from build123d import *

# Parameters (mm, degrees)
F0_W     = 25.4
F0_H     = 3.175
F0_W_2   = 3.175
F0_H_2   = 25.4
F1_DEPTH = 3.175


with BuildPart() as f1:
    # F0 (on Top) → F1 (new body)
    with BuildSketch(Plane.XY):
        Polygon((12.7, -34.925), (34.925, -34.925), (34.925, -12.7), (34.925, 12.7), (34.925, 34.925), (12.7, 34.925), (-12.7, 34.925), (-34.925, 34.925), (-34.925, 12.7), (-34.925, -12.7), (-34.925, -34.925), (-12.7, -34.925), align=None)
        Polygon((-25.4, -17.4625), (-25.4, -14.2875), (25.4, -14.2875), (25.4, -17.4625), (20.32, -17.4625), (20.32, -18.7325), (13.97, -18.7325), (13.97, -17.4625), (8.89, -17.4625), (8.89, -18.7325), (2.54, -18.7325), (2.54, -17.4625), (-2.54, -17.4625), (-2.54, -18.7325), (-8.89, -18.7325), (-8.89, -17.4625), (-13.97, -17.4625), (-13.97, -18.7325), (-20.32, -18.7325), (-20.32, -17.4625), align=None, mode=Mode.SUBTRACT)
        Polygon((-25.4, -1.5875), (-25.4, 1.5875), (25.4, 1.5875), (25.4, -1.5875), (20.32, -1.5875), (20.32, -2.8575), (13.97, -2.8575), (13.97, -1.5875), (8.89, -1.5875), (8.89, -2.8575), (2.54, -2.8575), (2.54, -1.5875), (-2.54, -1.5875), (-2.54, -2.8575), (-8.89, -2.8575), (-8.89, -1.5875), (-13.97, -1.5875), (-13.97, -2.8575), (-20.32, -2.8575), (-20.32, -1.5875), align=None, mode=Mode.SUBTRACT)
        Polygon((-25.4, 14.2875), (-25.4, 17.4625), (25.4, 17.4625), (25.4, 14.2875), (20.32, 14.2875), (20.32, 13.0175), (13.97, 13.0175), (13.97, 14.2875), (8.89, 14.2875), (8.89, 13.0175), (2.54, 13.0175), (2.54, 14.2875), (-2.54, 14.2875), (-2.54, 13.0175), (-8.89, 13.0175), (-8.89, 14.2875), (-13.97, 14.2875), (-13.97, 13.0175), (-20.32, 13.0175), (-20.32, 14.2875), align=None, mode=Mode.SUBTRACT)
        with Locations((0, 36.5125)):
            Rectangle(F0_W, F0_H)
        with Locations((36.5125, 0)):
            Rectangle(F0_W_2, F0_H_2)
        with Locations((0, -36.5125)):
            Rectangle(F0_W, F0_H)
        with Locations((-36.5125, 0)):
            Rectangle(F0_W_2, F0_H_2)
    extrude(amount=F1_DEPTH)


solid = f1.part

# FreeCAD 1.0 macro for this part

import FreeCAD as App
import Part
import Sketcher
Q = App.Units.Quantity

doc = App.newDocument("Part")
params = doc.addObject("Spreadsheet::Sheet", "Params")
for row, (alias, value) in enumerate([
    ("sketch1_width", "1 in"),
    ("sketch1_width2", "2 in"),
    ("sketch1_width3", "0.2 in"),
    ("sketch1_height", "0.05 in"),
    ("sketch1_width4", "0.125 in"),
    ("pad1_length", "0.125 in"),
], start=1):
    params.set(f"A{row}", alias)
    params.set(f"B{row}", "=" + value)
    params.setAlias(f"B{row}", alias)

body = doc.addObject("PartDesign::Body", "Body")

sketch1 = body.newObject("Sketcher::SketchObject", "Sketch")
sketch1.AttachmentSupport = (doc.getObject("XY_Plane"), [""])
sketch1.MapMode = "FlatFace"
sketch1.addGeometry(Part.LineSegment(App.Vector(34.9, -34.9, 0), App.Vector(34.9, -12.7, 0)), False)
sketch1.addGeometry(Part.LineSegment(App.Vector(34.9, -12.7, 0), App.Vector(38.1, -12.7, 0)), False)
sketch1.addGeometry(Part.LineSegment(App.Vector(38.1, -12.7, 0), App.Vector(38.1, 12.7, 0)), False)
sketch1.addGeometry(Part.LineSegment(App.Vector(38.1, 12.7, 0), App.Vector(34.9, 12.7, 0)), False)
sketch1.addGeometry(Part.LineSegment(App.Vector(34.9, 12.7, 0), App.Vector(34.9, 34.9, 0)), False)
sketch1.addGeometry(Part.LineSegment(App.Vector(34.9, 34.9, 0), App.Vector(12.7, 34.9, 0)), False)
sketch1.addGeometry(Part.LineSegment(App.Vector(12.7, 34.9, 0), App.Vector(12.7, 38.1, 0)), False)
sketch1.addGeometry(Part.LineSegment(App.Vector(12.7, 38.1, 0), App.Vector(-12.7, 38.1, 0)), False)
sketch1.addGeometry(Part.LineSegment(App.Vector(-12.7, 38.1, 0), App.Vector(-12.7, 34.9, 0)), False)
sketch1.addGeometry(Part.LineSegment(App.Vector(-12.7, 34.9, 0), App.Vector(-34.9, 34.9, 0)), False)
sketch1.addGeometry(Part.LineSegment(App.Vector(-34.9, 34.9, 0), App.Vector(-34.9, 12.7, 0)), False)
sketch1.addGeometry(Part.LineSegment(App.Vector(-34.9, 12.7, 0), App.Vector(-38.1, 12.7, 0)), False)
sketch1.addGeometry(Part.LineSegment(App.Vector(-38.1, 12.7, 0), App.Vector(-38.1, -12.7, 0)), False)
sketch1.addGeometry(Part.LineSegment(App.Vector(-38.1, -12.7, 0), App.Vector(-34.9, -12.7, 0)), False)
sketch1.addGeometry(Part.LineSegment(App.Vector(-34.9, -12.7, 0), App.Vector(-34.9, -34.9, 0)), False)
sketch1.addGeometry(Part.LineSegment(App.Vector(-34.9, -34.9, 0), App.Vector(-12.7, -34.9, 0)), False)
sketch1.addGeometry(Part.LineSegment(App.Vector(-12.7, -34.9, 0), App.Vector(-12.7, -38.1, 0)), False)
sketch1.addGeometry(Part.LineSegment(App.Vector(-12.7, -38.1, 0), App.Vector(12.7, -38.1, 0)), False)
sketch1.addGeometry(Part.LineSegment(App.Vector(12.7, -38.1, 0), App.Vector(12.7, -34.9, 0)), False)
sketch1.addGeometry(Part.LineSegment(App.Vector(12.7, -34.9, 0), App.Vector(34.9, -34.9, 0)), False)
sketch1.addGeometry(Part.LineSegment(App.Vector(-20.3, -17.5, 0), App.Vector(-25.4, -17.5, 0)), False)
sketch1.addGeometry(Part.LineSegment(App.Vector(-25.4, -17.5, 0), App.Vector(-25.4, -14.3, 0)), False)
sketch1.addGeometry(Part.LineSegment(App.Vector(-25.4, -14.3, 0), App.Vector(25.4, -14.3, 0)), False)
sketch1.addGeometry(Part.LineSegment(App.Vector(25.4, -14.3, 0), App.Vector(25.4, -17.5, 0)), False)
sketch1.addGeometry(Part.LineSegment(App.Vector(25.4, -17.5, 0), App.Vector(20.3, -17.5, 0)), False)
sketch1.addGeometry(Part.LineSegment(App.Vector(20.3, -17.5, 0), App.Vector(20.3, -18.7, 0)), False)
sketch1.addGeometry(Part.LineSegment(App.Vector(20.3, -18.7, 0), App.Vector(14, -18.7, 0)), False)
sketch1.addGeometry(Part.LineSegment(App.Vector(14, -18.7, 0), App.Vector(14, -17.5, 0)), False)
sketch1.addGeometry(Part.LineSegment(App.Vector(14, -17.5, 0), App.Vector(8.9, -17.5, 0)), False)
sketch1.addGeometry(Part.LineSegment(App.Vector(8.9, -17.5, 0), App.Vector(8.9, -18.7, 0)), False)
sketch1.addGeometry(Part.LineSegment(App.Vector(8.9, -18.7, 0), App.Vector(2.5, -18.7, 0)), False)
sketch1.addGeometry(Part.LineSegment(App.Vector(2.5, -18.7, 0), App.Vector(2.5, -17.5, 0)), False)
sketch1.addGeometry(Part.LineSegment(App.Vector(2.5, -17.5, 0), App.Vector(-2.5, -17.5, 0)), False)
sketch1.addGeometry(Part.LineSegment(App.Vector(-2.5, -17.5, 0), App.Vector(-2.5, -18.7, 0)), False)
sketch1.addGeometry(Part.LineSegment(App.Vector(-2.5, -18.7, 0), App.Vector(-8.9, -18.7, 0)), False)
sketch1.addGeometry(Part.LineSegment(App.Vector(-8.9, -18.7, 0), App.Vector(-8.9, -17.5, 0)), False)
sketch1.addGeometry(Part.LineSegment(App.Vector(-8.9, -17.5, 0), App.Vector(-14, -17.5, 0)), False)
sketch1.addGeometry(Part.LineSegment(App.Vector(-14, -17.5, 0), App.Vector(-14, -18.7, 0)), False)
sketch1.addGeometry(Part.LineSegment(App.Vector(-14, -18.7, 0), App.Vector(-20.3, -18.7, 0)), False)
sketch1.addGeometry(Part.LineSegment(App.Vector(-20.3, -18.7, 0), App.Vector(-20.3, -17.5, 0)), False)
sketch1.addGeometry(Part.LineSegment(App.Vector(-20.3, -1.6, 0), App.Vector(-25.4, -1.6, 0)), False)
sketch1.addGeometry(Part.LineSegment(App.Vector(-25.4, -1.6, 0), App.Vector(-25.4, 1.6, 0)), False)
sketch1.addGeometry(Part.LineSegment(App.Vector(-25.4, 1.6, 0), App.Vector(25.4, 1.6, 0)), False)
sketch1.addGeometry(Part.LineSegment(App.Vector(25.4, 1.6, 0), App.Vector(25.4, -1.6, 0)), False)
sketch1.addGeometry(Part.LineSegment(App.Vector(25.4, -1.6, 0), App.Vector(20.3, -1.6, 0)), False)
sketch1.addGeometry(Part.LineSegment(App.Vector(20.3, -1.6, 0), App.Vector(20.3, -2.9, 0)), False)
sketch1.addGeometry(Part.LineSegment(App.Vector(20.3, -2.9, 0), App.Vector(14, -2.9, 0)), False)
sketch1.addGeometry(Part.LineSegment(App.Vector(14, -2.9, 0), App.Vector(14, -1.6, 0)), False)
sketch1.addGeometry(Part.LineSegment(App.Vector(14, -1.6, 0), App.Vector(8.9, -1.6, 0)), False)
sketch1.addGeometry(Part.LineSegment(App.Vector(8.9, -1.6, 0), App.Vector(8.9, -2.9, 0)), False)
sketch1.addGeometry(Part.LineSegment(App.Vector(8.9, -2.9, 0), App.Vector(2.5, -2.9, 0)), False)
sketch1.addGeometry(Part.LineSegment(App.Vector(2.5, -2.9, 0), App.Vector(2.5, -1.6, 0)), False)
sketch1.addGeometry(Part.LineSegment(App.Vector(2.5, -1.6, 0), App.Vector(-2.5, -1.6, 0)), False)
sketch1.addGeometry(Part.LineSegment(App.Vector(-2.5, -1.6, 0), App.Vector(-2.5, -2.9, 0)), False)
sketch1.addGeometry(Part.LineSegment(App.Vector(-2.5, -2.9, 0), App.Vector(-8.9, -2.9, 0)), False)
sketch1.addGeometry(Part.LineSegment(App.Vector(-8.9, -2.9, 0), App.Vector(-8.9, -1.6, 0)), False)
sketch1.addGeometry(Part.LineSegment(App.Vector(-8.9, -1.6, 0), App.Vector(-14, -1.6, 0)), False)
sketch1.addGeometry(Part.LineSegment(App.Vector(-14, -1.6, 0), App.Vector(-14, -2.9, 0)), False)
sketch1.addGeometry(Part.LineSegment(App.Vector(-14, -2.9, 0), App.Vector(-20.3, -2.9, 0)), False)
sketch1.addGeometry(Part.LineSegment(App.Vector(-20.3, -2.9, 0), App.Vector(-20.3, -1.6, 0)), False)
sketch1.addGeometry(Part.LineSegment(App.Vector(-20.3, 14.3, 0), App.Vector(-25.4, 14.3, 0)), False)
sketch1.addGeometry(Part.LineSegment(App.Vector(-25.4, 14.3, 0), App.Vector(-25.4, 17.5, 0)), False)
sketch1.addGeometry(Part.LineSegment(App.Vector(-25.4, 17.5, 0), App.Vector(25.4, 17.5, 0)), False)
sketch1.addGeometry(Part.LineSegment(App.Vector(25.4, 17.5, 0), App.Vector(25.4, 14.3, 0)), False)
sketch1.addGeometry(Part.LineSegment(App.Vector(25.4, 14.3, 0), App.Vector(20.3, 14.3, 0)), False)
sketch1.addGeometry(Part.LineSegment(App.Vector(20.3, 14.3, 0), App.Vector(20.3, 13, 0)), False)
sketch1.addGeometry(Part.LineSegment(App.Vector(20.3, 13, 0), App.Vector(14, 13, 0)), False)
sketch1.addGeometry(Part.LineSegment(App.Vector(14, 13, 0), App.Vector(14, 14.3, 0)), False)
sketch1.addGeometry(Part.LineSegment(App.Vector(14, 14.3, 0), App.Vector(8.9, 14.3, 0)), False)
sketch1.addGeometry(Part.LineSegment(App.Vector(8.9, 14.3, 0), App.Vector(8.9, 13, 0)), False)
sketch1.addGeometry(Part.LineSegment(App.Vector(8.9, 13, 0), App.Vector(2.5, 13, 0)), False)
sketch1.addGeometry(Part.LineSegment(App.Vector(2.5, 13, 0), App.Vector(2.5, 14.3, 0)), False)
sketch1.addGeometry(Part.LineSegment(App.Vector(2.5, 14.3, 0), App.Vector(-2.5, 14.3, 0)), False)
sketch1.addGeometry(Part.LineSegment(App.Vector(-2.5, 14.3, 0), App.Vector(-2.5, 13, 0)), False)
sketch1.addGeometry(Part.LineSegment(App.Vector(-2.5, 13, 0), App.Vector(-8.9, 13, 0)), False)
sketch1.addGeometry(Part.LineSegment(App.Vector(-8.9, 13, 0), App.Vector(-8.9, 14.3, 0)), False)
sketch1.addGeometry(Part.LineSegment(App.Vector(-8.9, 14.3, 0), App.Vector(-14, 14.3, 0)), False)
sketch1.addGeometry(Part.LineSegment(App.Vector(-14, 14.3, 0), App.Vector(-14, 13, 0)), False)
sketch1.addGeometry(Part.LineSegment(App.Vector(-14, 13, 0), App.Vector(-20.3, 13, 0)), False)
sketch1.addGeometry(Part.LineSegment(App.Vector(-20.3, 13, 0), App.Vector(-20.3, 14.3, 0)), False)
sketch1.addConstraint(Sketcher.Constraint("Coincident", 0, 2, 1, 1))
sketch1.addConstraint(Sketcher.Constraint("Coincident", 1, 2, 2, 1))
sketch1.addConstraint(Sketcher.Constraint("Coincident", 2, 2, 3, 1))
sketch1.addConstraint(Sketcher.Constraint("Coincident", 3, 2, 4, 1))
sketch1.addConstraint(Sketcher.Constraint("Coincident", 4, 2, 5, 1))
sketch1.addConstraint(Sketcher.Constraint("Coincident", 5, 2, 6, 1))
sketch1.addConstraint(Sketcher.Constraint("Coincident", 6, 2, 7, 1))
sketch1.addConstraint(Sketcher.Constraint("Coincident", 7, 2, 8, 1))
sketch1.addConstraint(Sketcher.Constraint("Coincident", 8, 2, 9, 1))
sketch1.addConstraint(Sketcher.Constraint("Coincident", 9, 2, 10, 1))
sketch1.addConstraint(Sketcher.Constraint("Coincident", 10, 2, 11, 1))
sketch1.addConstraint(Sketcher.Constraint("Coincident", 11, 2, 12, 1))
sketch1.addConstraint(Sketcher.Constraint("Coincident", 12, 2, 13, 1))
sketch1.addConstraint(Sketcher.Constraint("Coincident", 13, 2, 14, 1))
sketch1.addConstraint(Sketcher.Constraint("Coincident", 14, 2, 15, 1))
sketch1.addConstraint(Sketcher.Constraint("Coincident", 15, 2, 16, 1))
sketch1.addConstraint(Sketcher.Constraint("Coincident", 16, 2, 17, 1))
sketch1.addConstraint(Sketcher.Constraint("Coincident", 17, 2, 18, 1))
sketch1.addConstraint(Sketcher.Constraint("Coincident", 18, 2, 19, 1))
sketch1.addConstraint(Sketcher.Constraint("Coincident", 19, 2, 0, 1))
sketch1.addConstraint(Sketcher.Constraint("Coincident", 20, 2, 21, 1))
sketch1.addConstraint(Sketcher.Constraint("Coincident", 21, 2, 22, 1))
sketch1.addConstraint(Sketcher.Constraint("Coincident", 22, 2, 23, 1))
sketch1.addConstraint(Sketcher.Constraint("Coincident", 23, 2, 24, 1))
sketch1.addConstraint(Sketcher.Constraint("Coincident", 24, 2, 25, 1))
sketch1.addConstraint(Sketcher.Constraint("Coincident", 25, 2, 26, 1))
sketch1.addConstraint(Sketcher.Constraint("Coincident", 26, 2, 27, 1))
sketch1.addConstraint(Sketcher.Constraint("Coincident", 27, 2, 28, 1))
sketch1.addConstraint(Sketcher.Constraint("Coincident", 28, 2, 29, 1))
sketch1.addConstraint(Sketcher.Constraint("Coincident", 29, 2, 30, 1))
sketch1.addConstraint(Sketcher.Constraint("Coincident", 30, 2, 31, 1))
sketch1.addConstraint(Sketcher.Constraint("Coincident", 31, 2, 32, 1))
sketch1.addConstraint(Sketcher.Constraint("Coincident", 32, 2, 33, 1))
sketch1.addConstraint(Sketcher.Constraint("Coincident", 33, 2, 34, 1))
sketch1.addConstraint(Sketcher.Constraint("Coincident", 34, 2, 35, 1))
sketch1.addConstraint(Sketcher.Constraint("Coincident", 35, 2, 36, 1))
sketch1.addConstraint(Sketcher.Constraint("Coincident", 36, 2, 37, 1))
sketch1.addConstraint(Sketcher.Constraint("Coincident", 37, 2, 38, 1))
sketch1.addConstraint(Sketcher.Constraint("Coincident", 38, 2, 39, 1))
sketch1.addConstraint(Sketcher.Constraint("Coincident", 39, 2, 20, 1))
sketch1.addConstraint(Sketcher.Constraint("Coincident", 40, 2, 41, 1))
sketch1.addConstraint(Sketcher.Constraint("Coincident", 41, 2, 42, 1))
sketch1.addConstraint(Sketcher.Constraint("Coincident", 42, 2, 43, 1))
sketch1.addConstraint(Sketcher.Constraint("Coincident", 43, 2, 44, 1))
sketch1.addConstraint(Sketcher.Constraint("Coincident", 44, 2, 45, 1))
sketch1.addConstraint(Sketcher.Constraint("Coincident", 45, 2, 46, 1))
sketch1.addConstraint(Sketcher.Constraint("Coincident", 46, 2, 47, 1))
sketch1.addConstraint(Sketcher.Constraint("Coincident", 47, 2, 48, 1))
sketch1.addConstraint(Sketcher.Constraint("Coincident", 48, 2, 49, 1))
sketch1.addConstraint(Sketcher.Constraint("Coincident", 49, 2, 50, 1))
sketch1.addConstraint(Sketcher.Constraint("Coincident", 50, 2, 51, 1))
sketch1.addConstraint(Sketcher.Constraint("Coincident", 51, 2, 52, 1))
sketch1.addConstraint(Sketcher.Constraint("Coincident", 52, 2, 53, 1))
sketch1.addConstraint(Sketcher.Constraint("Coincident", 53, 2, 54, 1))
sketch1.addConstraint(Sketcher.Constraint("Coincident", 54, 2, 55, 1))
sketch1.addConstraint(Sketcher.Constraint("Coincident", 55, 2, 56, 1))
sketch1.addConstraint(Sketcher.Constraint("Coincident", 56, 2, 57, 1))
sketch1.addConstraint(Sketcher.Constraint("Coincident", 57, 2, 58, 1))
sketch1.addConstraint(Sketcher.Constraint("Coincident", 58, 2, 59, 1))
sketch1.addConstraint(Sketcher.Constraint("Coincident", 59, 2, 40, 1))
sketch1.addConstraint(Sketcher.Constraint("Coincident", 60, 2, 61, 1))
sketch1.addConstraint(Sketcher.Constraint("Coincident", 61, 2, 62, 1))
sketch1.addConstraint(Sketcher.Constraint("Coincident", 62, 2, 63, 1))
sketch1.addConstraint(Sketcher.Constraint("Coincident", 63, 2, 64, 1))
sketch1.addConstraint(Sketcher.Constraint("Coincident", 64, 2, 65, 1))
sketch1.addConstraint(Sketcher.Constraint("Coincident", 65, 2, 66, 1))
sketch1.addConstraint(Sketcher.Constraint("Coincident", 66, 2, 67, 1))
sketch1.addConstraint(Sketcher.Constraint("Coincident", 67, 2, 68, 1))
sketch1.addConstraint(Sketcher.Constraint("Coincident", 68, 2, 69, 1))
sketch1.addConstraint(Sketcher.Constraint("Coincident", 69, 2, 70, 1))
sketch1.addConstraint(Sketcher.Constraint("Coincident", 70, 2, 71, 1))
sketch1.addConstraint(Sketcher.Constraint("Coincident", 71, 2, 72, 1))
sketch1.addConstraint(Sketcher.Constraint("Coincident", 72, 2, 73, 1))
sketch1.addConstraint(Sketcher.Constraint("Coincident", 73, 2, 74, 1))
sketch1.addConstraint(Sketcher.Constraint("Coincident", 74, 2, 75, 1))
sketch1.addConstraint(Sketcher.Constraint("Coincident", 75, 2, 76, 1))
sketch1.addConstraint(Sketcher.Constraint("Coincident", 76, 2, 77, 1))
sketch1.addConstraint(Sketcher.Constraint("Coincident", 77, 2, 78, 1))
sketch1.addConstraint(Sketcher.Constraint("Coincident", 78, 2, 79, 1))
sketch1.addConstraint(Sketcher.Constraint("Coincident", 79, 2, 60, 1))
sketch1.addConstraint(Sketcher.Constraint("Vertical", 0))
sketch1.addConstraint(Sketcher.Constraint("Horizontal", 1))
sketch1.addConstraint(Sketcher.Constraint("Vertical", 2))
sketch1.addConstraint(Sketcher.Constraint("Horizontal", 3))
sketch1.addConstraint(Sketcher.Constraint("Vertical", 4))
sketch1.addConstraint(Sketcher.Constraint("Horizontal", 5))
sketch1.addConstraint(Sketcher.Constraint("Vertical", 6))
sketch1.addConstraint(Sketcher.Constraint("Horizontal", 7))
sketch1.addConstraint(Sketcher.Constraint("Vertical", 8))
sketch1.addConstraint(Sketcher.Constraint("Horizontal", 9))
sketch1.addConstraint(Sketcher.Constraint("Vertical", 10))
sketch1.addConstraint(Sketcher.Constraint("Horizontal", 11))
sketch1.addConstraint(Sketcher.Constraint("Vertical", 12))
sketch1.addConstraint(Sketcher.Constraint("Horizontal", 13))
sketch1.addConstraint(Sketcher.Constraint("Vertical", 14))
sketch1.addConstraint(Sketcher.Constraint("Horizontal", 15))
sketch1.addConstraint(Sketcher.Constraint("Vertical", 16))
sketch1.addConstraint(Sketcher.Constraint("Horizontal", 17))
sketch1.addConstraint(Sketcher.Constraint("Vertical", 18))
sketch1.addConstraint(Sketcher.Constraint("Horizontal", 19))
sketch1.addConstraint(Sketcher.Constraint("Horizontal", 20))
sketch1.addConstraint(Sketcher.Constraint("Vertical", 21))
sketch1.addConstraint(Sketcher.Constraint("Horizontal", 22))
sketch1.addConstraint(Sketcher.Constraint("Vertical", 23))
sketch1.addConstraint(Sketcher.Constraint("Horizontal", 24))
sketch1.addConstraint(Sketcher.Constraint("Vertical", 25))
sketch1.addConstraint(Sketcher.Constraint("Horizontal", 26))
sketch1.addConstraint(Sketcher.Constraint("Vertical", 27))
sketch1.addConstraint(Sketcher.Constraint("Horizontal", 28))
sketch1.addConstraint(Sketcher.Constraint("Vertical", 29))
sketch1.addConstraint(Sketcher.Constraint("Horizontal", 30))
sketch1.addConstraint(Sketcher.Constraint("Vertical", 31))
sketch1.addConstraint(Sketcher.Constraint("Horizontal", 32))
sketch1.addConstraint(Sketcher.Constraint("Vertical", 33))
sketch1.addConstraint(Sketcher.Constraint("Horizontal", 34))
sketch1.addConstraint(Sketcher.Constraint("Vertical", 35))
sketch1.addConstraint(Sketcher.Constraint("Horizontal", 36))
sketch1.addConstraint(Sketcher.Constraint("Vertical", 37))
sketch1.addConstraint(Sketcher.Constraint("Horizontal", 38))
sketch1.addConstraint(Sketcher.Constraint("Vertical", 39))
sketch1.addConstraint(Sketcher.Constraint("Horizontal", 40))
sketch1.addConstraint(Sketcher.Constraint("Vertical", 41))
sketch1.addConstraint(Sketcher.Constraint("Horizontal", 42))
sketch1.addConstraint(Sketcher.Constraint("Vertical", 43))
sketch1.addConstraint(Sketcher.Constraint("Horizontal", 44))
sketch1.addConstraint(Sketcher.Constraint("Vertical", 45))
sketch1.addConstraint(Sketcher.Constraint("Horizontal", 46))
sketch1.addConstraint(Sketcher.Constraint("Vertical", 47))
sketch1.addConstraint(Sketcher.Constraint("Horizontal", 48))
sketch1.addConstraint(Sketcher.Constraint("Vertical", 49))
sketch1.addConstraint(Sketcher.Constraint("Horizontal", 50))
sketch1.addConstraint(Sketcher.Constraint("Vertical", 51))
sketch1.addConstraint(Sketcher.Constraint("Horizontal", 52))
sketch1.addConstraint(Sketcher.Constraint("Vertical", 53))
sketch1.addConstraint(Sketcher.Constraint("Horizontal", 54))
sketch1.addConstraint(Sketcher.Constraint("Vertical", 55))
sketch1.addConstraint(Sketcher.Constraint("Horizontal", 56))
sketch1.addConstraint(Sketcher.Constraint("Vertical", 57))
sketch1.addConstraint(Sketcher.Constraint("Horizontal", 58))
sketch1.addConstraint(Sketcher.Constraint("Vertical", 59))
sketch1.addConstraint(Sketcher.Constraint("Horizontal", 60))
sketch1.addConstraint(Sketcher.Constraint("Vertical", 61))
sketch1.addConstraint(Sketcher.Constraint("Horizontal", 62))
sketch1.addConstraint(Sketcher.Constraint("Vertical", 63))
sketch1.addConstraint(Sketcher.Constraint("Horizontal", 64))
sketch1.addConstraint(Sketcher.Constraint("Vertical", 65))
sketch1.addConstraint(Sketcher.Constraint("Horizontal", 66))
sketch1.addConstraint(Sketcher.Constraint("Vertical", 67))
sketch1.addConstraint(Sketcher.Constraint("Horizontal", 68))
sketch1.addConstraint(Sketcher.Constraint("Vertical", 69))
sketch1.addConstraint(Sketcher.Constraint("Horizontal", 70))
sketch1.addConstraint(Sketcher.Constraint("Vertical", 71))
sketch1.addConstraint(Sketcher.Constraint("Horizontal", 72))
sketch1.addConstraint(Sketcher.Constraint("Vertical", 73))
sketch1.addConstraint(Sketcher.Constraint("Horizontal", 74))
sketch1.addConstraint(Sketcher.Constraint("Vertical", 75))
sketch1.addConstraint(Sketcher.Constraint("Horizontal", 76))
sketch1.addConstraint(Sketcher.Constraint("Vertical", 77))
sketch1.addConstraint(Sketcher.Constraint("Horizontal", 78))
sketch1.addConstraint(Sketcher.Constraint("Vertical", 79))
sketch1.addConstraint(Sketcher.Constraint("Symmetric", 0, 2, 10, 2, -1, 1))
sketch1.addConstraint(Sketcher.Constraint("Symmetric", 2, 2, 12, 2, -1, 1))
sketch1.addConstraint(Sketcher.Constraint("Symmetric", 4, 2, 14, 2, -1, 1))
sketch1.addConstraint(Sketcher.Constraint("Symmetric", 6, 2, 16, 2, -1, 1))
sketch1.addConstraint(Sketcher.Constraint("Symmetric", 8, 2, 18, 2, -1, 1))
sketch1.addConstraint(Sketcher.Constraint("Symmetric", 40, 2, 42, 2, -1, 1))
sketch1.addConstraint(Sketcher.Constraint("Symmetric", 22, 2, 60, 2, -1, 1))
sketch1.addConstraint(Sketcher.Constraint("Symmetric", 20, 2, 62, 2, -1, 1))
sketch1.addConstraint(Sketcher.Constraint("Symmetric", 5, 2, 8, 2, -2))
sketch1.addConstraint(Sketcher.Constraint("Symmetric", 3, 2, 10, 2, -2))
sketch1.addConstraint(Sketcher.Constraint("Symmetric", 20, 2, 23, 2, -2))
sketch1.addConstraint(Sketcher.Constraint("Symmetric", 30, 2, 33, 2, -2))
sketch1.addConstraint(Sketcher.Constraint("Symmetric", 28, 2, 35, 2, -2))
sketch1.addConstraint(Sketcher.Constraint("Symmetric", 26, 2, 37, 2, -2))
sketch1.addConstraint(Sketcher.Constraint("Symmetric", 50, 2, 53, 2, -2))
sketch1.addConstraint(Sketcher.Constraint("Symmetric", 48, 2, 55, 2, -2))
sketch1.addConstraint(Sketcher.Constraint("Symmetric", 46, 2, 57, 2, -2))
sketch1.addConstraint(Sketcher.Constraint("Symmetric", 44, 2, 59, 2, -2))
sketch1.addConstraint(Sketcher.Constraint("Symmetric", 70, 2, 73, 2, -2))
sketch1.addConstraint(Sketcher.Constraint("Symmetric", 68, 2, 75, 2, -2))
sketch1.addConstraint(Sketcher.Constraint("Symmetric", 66, 2, 77, 2, -2))
sketch1.addConstraint(Sketcher.Constraint("Symmetric", 64, 2, 79, 2, -2))
sketch1.addConstraint(Sketcher.Constraint("Horizontal", 24, 2, 27, 2))
sketch1.addConstraint(Sketcher.Constraint("Horizontal", 26, 2, 29, 2))
sketch1.addConstraint(Sketcher.Constraint("Horizontal", 28, 2, 31, 2))
sketch1.addConstraint(Sketcher.Constraint("Horizontal", 44, 2, 47, 2))
sketch1.addConstraint(Sketcher.Constraint("Horizontal", 46, 2, 49, 2))
sketch1.addConstraint(Sketcher.Constraint("Horizontal", 48, 2, 51, 2))
sketch1.addConstraint(Sketcher.Constraint("Horizontal", 64, 2, 67, 2))
sketch1.addConstraint(Sketcher.Constraint("Horizontal", 66, 2, 69, 2))
sketch1.addConstraint(Sketcher.Constraint("Horizontal", 68, 2, 71, 2))
sketch1.addConstraint(Sketcher.Constraint("Vertical", 21, 2, 40, 2))
sketch1.addConstraint(Sketcher.Constraint("Vertical", 25, 2, 44, 2))
sketch1.addConstraint(Sketcher.Constraint("Vertical", 27, 2, 46, 2))
sketch1.addConstraint(Sketcher.Constraint("Vertical", 29, 2, 48, 2))
sketch1.addConstraint(Sketcher.Constraint("Vertical", 31, 2, 50, 2))
sketch1.addConstraint(Sketcher.Constraint("Vertical", 39, 2, 58, 2))
sketch1.addConstraint(Sketcher.Constraint("Vertical", 45, 2, 64, 2))
sketch1.addConstraint(Sketcher.Constraint("Vertical", 47, 2, 66, 2))
sketch1.addConstraint(Sketcher.Constraint("Vertical", 49, 2, 68, 2))
sketch1.addConstraint(Sketcher.Constraint("Vertical", 51, 2, 70, 2))
sketch1.addConstraint(Sketcher.Constraint("Equal", 24, 28))
sketch1.addConstraint(Sketcher.Constraint("Equal", 26, 30))
sketch1.addConstraint(Sketcher.Constraint("Equal", 28, 32))
sketch1.addConstraint(Sketcher.Constraint("Equal", 19, 0))
sketch1.addConstraint(Sketcher.Constraint("Equal", 17, 2))
sketch1.addConstraint(Sketcher.Constraint("Equal", 13, 6))
sketch1.addConstraint(Sketcher.Constraint("Equal", 18, 21))
sketch1.addConstraint(Sketcher.Constraint("Equal", 23, 41))
sketch1.addConstraint(Sketcher.Constraint("Equal", 39, 45))
sketch1.addConstraint(Sketcher.Constraint("Equal", 59, 65))
sketch1.addConstraint(Sketcher.Constraint("DistanceX", 7, 2, 7, 1, Q("1 in")))
sketch1.addConstraint(Sketcher.Constraint("DistanceX", 22, 1, 22, 2, Q("2 in")))
sketch1.addConstraint(Sketcher.Constraint("DistanceX", 20, 2, 20, 1, Q("0.2 in")))
sketch1.addConstraint(Sketcher.Constraint("DistanceY", 25, 2, 25, 1, Q("0.05 in")))
sketch1.addConstraint(Sketcher.Constraint("DistanceX", -1, 1, 1, 2, Q("1.5 in")))
sketch1.addConstraint(Sketcher.Constraint("DistanceX", 1, 1, 1, 2, Q("0.125 in")))
sketch1.addConstraint(Sketcher.Constraint("DistanceY", 20, 2, -1, 1, Q("0.6875 in")))
sketch1.setExpression("Constraints[211]", "Params.sketch1_width")
sketch1.setExpression("Constraints[212]", "Params.sketch1_width2")
sketch1.setExpression("Constraints[213]", "Params.sketch1_width3")
sketch1.setExpression("Constraints[214]", "Params.sketch1_height")
sketch1.setExpression("Constraints[216]", "Params.sketch1_width4")
pad1 = body.newObject("PartDesign::Pad", "Pad")
pad1.Profile = sketch1
pad1.setExpression("Length", "Params.pad1_length")

doc.recompute()
